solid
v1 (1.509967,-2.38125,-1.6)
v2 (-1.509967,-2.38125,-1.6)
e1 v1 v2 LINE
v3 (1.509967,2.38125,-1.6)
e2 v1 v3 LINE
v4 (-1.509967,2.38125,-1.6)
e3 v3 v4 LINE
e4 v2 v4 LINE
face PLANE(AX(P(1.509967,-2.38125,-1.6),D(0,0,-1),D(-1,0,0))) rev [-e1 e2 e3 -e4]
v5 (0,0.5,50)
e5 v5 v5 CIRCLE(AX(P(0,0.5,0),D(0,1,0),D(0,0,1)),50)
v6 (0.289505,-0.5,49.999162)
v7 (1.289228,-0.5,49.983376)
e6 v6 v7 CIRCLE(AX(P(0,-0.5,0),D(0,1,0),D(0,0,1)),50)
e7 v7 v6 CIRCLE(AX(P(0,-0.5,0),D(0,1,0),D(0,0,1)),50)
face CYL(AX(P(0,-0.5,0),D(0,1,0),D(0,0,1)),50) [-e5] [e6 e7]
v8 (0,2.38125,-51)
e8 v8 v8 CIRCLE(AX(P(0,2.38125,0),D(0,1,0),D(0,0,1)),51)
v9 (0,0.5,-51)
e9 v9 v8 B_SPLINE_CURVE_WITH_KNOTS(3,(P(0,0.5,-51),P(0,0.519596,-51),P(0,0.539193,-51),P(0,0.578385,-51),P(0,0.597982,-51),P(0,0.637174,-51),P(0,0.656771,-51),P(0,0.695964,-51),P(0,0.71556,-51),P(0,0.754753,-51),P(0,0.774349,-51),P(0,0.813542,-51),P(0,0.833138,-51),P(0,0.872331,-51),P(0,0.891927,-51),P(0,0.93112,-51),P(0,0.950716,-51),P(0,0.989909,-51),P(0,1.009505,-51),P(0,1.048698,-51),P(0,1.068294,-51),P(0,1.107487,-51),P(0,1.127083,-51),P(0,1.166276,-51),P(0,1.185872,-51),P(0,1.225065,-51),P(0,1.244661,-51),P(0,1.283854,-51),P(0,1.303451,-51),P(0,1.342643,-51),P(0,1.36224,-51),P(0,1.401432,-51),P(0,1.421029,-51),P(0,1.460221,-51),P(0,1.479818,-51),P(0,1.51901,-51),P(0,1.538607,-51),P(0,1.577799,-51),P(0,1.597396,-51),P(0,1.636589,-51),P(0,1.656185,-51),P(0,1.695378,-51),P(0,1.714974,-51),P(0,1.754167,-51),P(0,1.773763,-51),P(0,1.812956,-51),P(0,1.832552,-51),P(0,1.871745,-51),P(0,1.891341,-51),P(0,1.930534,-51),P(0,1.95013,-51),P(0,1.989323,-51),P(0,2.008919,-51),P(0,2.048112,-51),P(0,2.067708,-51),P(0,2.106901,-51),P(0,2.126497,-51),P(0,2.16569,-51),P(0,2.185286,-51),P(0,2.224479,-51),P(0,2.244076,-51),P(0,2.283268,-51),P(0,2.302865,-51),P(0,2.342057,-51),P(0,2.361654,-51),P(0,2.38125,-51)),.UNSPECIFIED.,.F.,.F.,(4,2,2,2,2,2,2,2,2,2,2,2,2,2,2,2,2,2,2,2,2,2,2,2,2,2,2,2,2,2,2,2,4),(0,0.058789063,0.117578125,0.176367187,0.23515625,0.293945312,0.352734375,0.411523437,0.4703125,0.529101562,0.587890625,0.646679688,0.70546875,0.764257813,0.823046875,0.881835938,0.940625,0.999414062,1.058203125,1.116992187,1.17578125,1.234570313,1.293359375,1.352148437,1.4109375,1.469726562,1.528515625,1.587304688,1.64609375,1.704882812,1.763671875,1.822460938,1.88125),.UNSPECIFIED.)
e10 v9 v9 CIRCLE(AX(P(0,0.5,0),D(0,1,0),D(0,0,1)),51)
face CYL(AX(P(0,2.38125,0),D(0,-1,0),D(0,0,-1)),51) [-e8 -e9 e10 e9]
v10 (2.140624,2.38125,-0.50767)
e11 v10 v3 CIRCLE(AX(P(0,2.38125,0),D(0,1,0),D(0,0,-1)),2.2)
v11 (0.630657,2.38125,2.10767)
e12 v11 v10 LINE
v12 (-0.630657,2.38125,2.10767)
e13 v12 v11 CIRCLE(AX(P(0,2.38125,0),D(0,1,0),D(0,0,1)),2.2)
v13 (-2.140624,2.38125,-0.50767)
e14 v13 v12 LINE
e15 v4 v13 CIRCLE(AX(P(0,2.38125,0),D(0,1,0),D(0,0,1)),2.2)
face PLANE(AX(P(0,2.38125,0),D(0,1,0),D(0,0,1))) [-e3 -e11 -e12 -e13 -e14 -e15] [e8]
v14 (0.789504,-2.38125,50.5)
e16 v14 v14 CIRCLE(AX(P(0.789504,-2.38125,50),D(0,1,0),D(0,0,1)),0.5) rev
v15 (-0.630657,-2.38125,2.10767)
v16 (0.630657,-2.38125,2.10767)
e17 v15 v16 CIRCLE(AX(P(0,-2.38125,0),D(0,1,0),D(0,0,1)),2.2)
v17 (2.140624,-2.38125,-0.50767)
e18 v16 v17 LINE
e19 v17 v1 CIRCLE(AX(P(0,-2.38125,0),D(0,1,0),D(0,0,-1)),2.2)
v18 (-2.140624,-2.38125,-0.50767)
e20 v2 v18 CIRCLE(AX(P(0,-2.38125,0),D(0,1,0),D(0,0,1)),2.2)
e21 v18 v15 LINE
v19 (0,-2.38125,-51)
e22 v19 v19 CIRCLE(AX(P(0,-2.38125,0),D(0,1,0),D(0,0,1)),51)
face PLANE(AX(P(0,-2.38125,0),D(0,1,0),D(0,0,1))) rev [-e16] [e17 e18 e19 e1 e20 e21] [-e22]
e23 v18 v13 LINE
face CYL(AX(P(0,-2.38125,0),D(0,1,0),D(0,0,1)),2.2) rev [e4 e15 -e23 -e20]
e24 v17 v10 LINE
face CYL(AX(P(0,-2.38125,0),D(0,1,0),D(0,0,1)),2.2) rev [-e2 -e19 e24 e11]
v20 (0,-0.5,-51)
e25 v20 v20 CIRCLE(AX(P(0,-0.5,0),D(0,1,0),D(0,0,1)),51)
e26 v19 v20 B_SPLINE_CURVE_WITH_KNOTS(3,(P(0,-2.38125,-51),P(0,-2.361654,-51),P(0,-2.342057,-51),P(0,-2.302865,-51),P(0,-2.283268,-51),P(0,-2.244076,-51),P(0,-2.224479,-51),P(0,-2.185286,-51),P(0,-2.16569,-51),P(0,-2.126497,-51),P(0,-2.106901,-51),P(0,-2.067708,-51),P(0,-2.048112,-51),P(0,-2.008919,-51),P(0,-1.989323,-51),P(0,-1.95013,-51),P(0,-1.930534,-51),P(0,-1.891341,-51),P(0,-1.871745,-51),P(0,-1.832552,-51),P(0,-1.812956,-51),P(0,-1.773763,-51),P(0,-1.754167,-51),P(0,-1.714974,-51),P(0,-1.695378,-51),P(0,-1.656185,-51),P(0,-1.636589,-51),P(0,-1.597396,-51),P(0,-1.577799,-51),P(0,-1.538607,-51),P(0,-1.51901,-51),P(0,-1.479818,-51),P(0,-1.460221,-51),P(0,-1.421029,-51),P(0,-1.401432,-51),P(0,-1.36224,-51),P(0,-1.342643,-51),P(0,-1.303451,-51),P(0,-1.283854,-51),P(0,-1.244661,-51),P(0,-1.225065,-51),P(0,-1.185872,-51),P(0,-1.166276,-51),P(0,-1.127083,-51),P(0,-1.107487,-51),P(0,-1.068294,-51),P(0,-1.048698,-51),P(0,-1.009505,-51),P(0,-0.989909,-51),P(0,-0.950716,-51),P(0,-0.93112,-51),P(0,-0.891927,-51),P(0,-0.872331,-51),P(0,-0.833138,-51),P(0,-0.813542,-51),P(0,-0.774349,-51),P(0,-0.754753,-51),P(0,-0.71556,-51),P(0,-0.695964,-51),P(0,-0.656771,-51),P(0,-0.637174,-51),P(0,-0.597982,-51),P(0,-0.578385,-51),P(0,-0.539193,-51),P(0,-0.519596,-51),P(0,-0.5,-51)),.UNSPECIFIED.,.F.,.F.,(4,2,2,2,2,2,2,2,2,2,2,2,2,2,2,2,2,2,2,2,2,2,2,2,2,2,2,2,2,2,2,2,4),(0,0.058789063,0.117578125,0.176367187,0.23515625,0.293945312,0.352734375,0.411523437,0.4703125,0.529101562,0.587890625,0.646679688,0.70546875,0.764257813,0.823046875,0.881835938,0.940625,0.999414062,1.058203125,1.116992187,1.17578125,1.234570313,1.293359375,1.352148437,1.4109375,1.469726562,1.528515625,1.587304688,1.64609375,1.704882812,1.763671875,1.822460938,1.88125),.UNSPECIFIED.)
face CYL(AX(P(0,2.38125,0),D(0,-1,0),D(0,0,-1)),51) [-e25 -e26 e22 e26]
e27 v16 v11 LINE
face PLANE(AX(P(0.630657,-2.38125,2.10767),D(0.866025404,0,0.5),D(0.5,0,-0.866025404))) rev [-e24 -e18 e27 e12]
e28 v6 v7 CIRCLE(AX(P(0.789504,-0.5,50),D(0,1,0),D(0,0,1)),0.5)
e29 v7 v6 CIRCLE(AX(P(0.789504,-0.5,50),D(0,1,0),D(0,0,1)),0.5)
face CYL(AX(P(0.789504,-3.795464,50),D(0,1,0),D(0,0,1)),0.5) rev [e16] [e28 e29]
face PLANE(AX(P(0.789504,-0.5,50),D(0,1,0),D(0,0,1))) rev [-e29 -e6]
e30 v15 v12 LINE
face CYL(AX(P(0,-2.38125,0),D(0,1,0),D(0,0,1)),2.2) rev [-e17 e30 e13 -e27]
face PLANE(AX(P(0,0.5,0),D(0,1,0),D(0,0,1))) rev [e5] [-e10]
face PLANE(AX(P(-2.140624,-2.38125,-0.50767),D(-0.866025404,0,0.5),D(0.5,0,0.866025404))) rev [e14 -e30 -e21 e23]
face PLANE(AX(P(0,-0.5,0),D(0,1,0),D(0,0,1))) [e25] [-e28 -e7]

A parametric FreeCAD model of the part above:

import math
import FreeCAD as App
import Part
import Sketcher
Q = App.Units.Quantity

doc = App.newDocument("Part")
body = doc.addObject("PartDesign::Body", "Body")

# Sketch on XZ plane
sketch1 = body.newObject("Sketcher::SketchObject", "Sketch")
sketch1.AttachmentSupport = (doc.getObject("XZ_Plane"), [""])
sketch1.MapMode = "FlatFace"
sketch1.addGeometry(Part.Circle(App.Vector(0, 0, 0), App.Vector(0, 0, 1), 51), False)
sketch1.addConstraint(Sketcher.Constraint("Coincident", 0, 3, -1, 1))
sketch1.addConstraint(Sketcher.Constraint("Diameter", 0, 102.0))
pad1 = body.newObject("PartDesign::Pad", "Pad")
pad1.Profile = sketch1
pad1.Length = 4.7625
pad1.Midplane = True

# Sketch on XZ plane
sketch2 = body.newObject("Sketcher::SketchObject", "Sketch001")
sketch2.AttachmentSupport = (doc.getObject("XZ_Plane"), [""])
sketch2.MapMode = "FlatFace"
sketch2.addGeometry(Part.Circle(App.Vector(0, 0, 0), App.Vector(0, 0, 1), 51), False)
sketch2.addGeometry(Part.Circle(App.Vector(0, 0, 0), App.Vector(0, 0, 1), 50), False)
sketch2.addConstraint(Sketcher.Constraint("Coincident", 0, 3, -1, 1))
sketch2.addConstraint(Sketcher.Constraint("Coincident", 1, 3, -1, 1))
sketch2.addConstraint(Sketcher.Constraint("Diameter", 0, 102.0))
sketch2.addConstraint(Sketcher.Constraint("Diameter", 1, 100.0))
pocket1 = body.newObject("PartDesign::Pocket", "Pocket")
pocket1.Profile = sketch2
pocket1.Length = 1
pocket1.Midplane = True

# Sketch on XZ plane
sketch3 = body.newObject("Sketcher::SketchObject", "Sketch002")
sketch3.AttachmentSupport = (doc.getObject("XZ_Plane"), [""])
sketch3.MapMode = "FlatFace"
sketch3.AttachmentOffset = App.Placement(App.Vector(0, 0, 0.5), App.Rotation())
sketch3.addGeometry(Part.Circle(App.Vector(0.8, 50, 0), App.Vector(0, 0, 1), 0.5), False)
sketch3.addConstraint(Sketcher.Constraint("Diameter", 0, 1.0))
sketch3.addConstraint(Sketcher.Constraint("DistanceY", -1, 1, 0, 3, 50.0))
sketch3.addConstraint(Sketcher.Constraint("DistanceX", -1, 1, 0, 3, 0.789504))
pocket2 = body.newObject("PartDesign::Pocket", "Pocket001")
pocket2.Profile = sketch3
pocket2.Length = 1.88125
pocket2.Reversed = True

# Sketch on XZ plane
sketch4 = body.newObject("Sketcher::SketchObject", "Sketch003")
sketch4.AttachmentSupport = (doc.getObject("XZ_Plane"), [""])
sketch4.MapMode = "FlatFace"
sketch4.AttachmentOffset = App.Placement(App.Vector(0, 0, -2.38125), App.Rotation())
sketch4.addGeometry(Part.LineSegment(App.Vector(-2.1, -0.5, 0), App.Vector(-0.6, 2.1, 0)), False)
sketch4.addGeometry(Part.ArcOfCircle(Part.Circle(App.Vector(0, 0, 0), App.Vector(0, 0, 1), 2.2), math.radians(73), math.radians(107)), False)
sketch4.addGeometry(Part.LineSegment(App.Vector(0.6, 2.1, 0), App.Vector(2.1, -0.5, 0)), False)
sketch4.addGeometry(Part.ArcOfCircle(Part.Circle(App.Vector(0, 0, 0), App.Vector(0, 0, 1), 2.2), math.radians(-47), math.radians(-13)), False)
sketch4.addGeometry(Part.LineSegment(App.Vector(1.5, -1.6, 0), App.Vector(-1.5, -1.6, 0)), False)
sketch4.addGeometry(Part.ArcOfCircle(Part.Circle(App.Vector(0, 0, 0), App.Vector(0, 0, 1), 2.2), math.radians(-167), math.radians(-133)), False)
sketch4.addConstraint(Sketcher.Constraint("Coincident", 0, 2, 1, 2))
sketch4.addConstraint(Sketcher.Constraint("Coincident", 1, 1, 2, 1))
sketch4.addConstraint(Sketcher.Constraint("Coincident", 2, 2, 3, 2))
sketch4.addConstraint(Sketcher.Constraint("Coincident", 3, 1, 4, 1))
sketch4.addConstraint(Sketcher.Constraint("Coincident", 4, 2, 5, 2))
sketch4.addConstraint(Sketcher.Constraint("Coincident", 5, 1, 0, 1))
sketch4.addConstraint(Sketcher.Constraint("Horizontal", 4))
sketch4.addConstraint(Sketcher.Constraint("Coincident", 1, 3, -1, 1))
sketch4.addConstraint(Sketcher.Constraint("Coincident", 3, 3, -1, 1))
sketch4.addConstraint(Sketcher.Constraint("Coincident", 5, 3, -1, 1))
sketch4.addConstraint(Sketcher.Constraint("Equal", 1, 3))
sketch4.addConstraint(Sketcher.Constraint("Equal", 3, 5))
sketch4.addConstraint(Sketcher.Constraint("Horizontal", 0, 2, 1, 1))
sketch4.addConstraint(Sketcher.Constraint("Horizontal", 2, 2, 5, 1))
sketch4.addConstraint(Sketcher.Constraint("Radius", 1, 2.2))
sketch4.addConstraint(Sketcher.Constraint("Angle", 0, Q("60 deg")))
sketch4.addConstraint(Sketcher.Constraint("DistanceY", 3, 1, -1, 1, 1.6))
sketch4.addConstraint(Sketcher.Constraint("DistanceY", -1, 1, 0, 2, 2.10767))
pocket3 = body.newObject("PartDesign::Pocket", "Pocket002")
pocket3.Profile = sketch4
pocket3.Type = "ThroughAll"
pocket3.Reversed = True

doc.recompute()
